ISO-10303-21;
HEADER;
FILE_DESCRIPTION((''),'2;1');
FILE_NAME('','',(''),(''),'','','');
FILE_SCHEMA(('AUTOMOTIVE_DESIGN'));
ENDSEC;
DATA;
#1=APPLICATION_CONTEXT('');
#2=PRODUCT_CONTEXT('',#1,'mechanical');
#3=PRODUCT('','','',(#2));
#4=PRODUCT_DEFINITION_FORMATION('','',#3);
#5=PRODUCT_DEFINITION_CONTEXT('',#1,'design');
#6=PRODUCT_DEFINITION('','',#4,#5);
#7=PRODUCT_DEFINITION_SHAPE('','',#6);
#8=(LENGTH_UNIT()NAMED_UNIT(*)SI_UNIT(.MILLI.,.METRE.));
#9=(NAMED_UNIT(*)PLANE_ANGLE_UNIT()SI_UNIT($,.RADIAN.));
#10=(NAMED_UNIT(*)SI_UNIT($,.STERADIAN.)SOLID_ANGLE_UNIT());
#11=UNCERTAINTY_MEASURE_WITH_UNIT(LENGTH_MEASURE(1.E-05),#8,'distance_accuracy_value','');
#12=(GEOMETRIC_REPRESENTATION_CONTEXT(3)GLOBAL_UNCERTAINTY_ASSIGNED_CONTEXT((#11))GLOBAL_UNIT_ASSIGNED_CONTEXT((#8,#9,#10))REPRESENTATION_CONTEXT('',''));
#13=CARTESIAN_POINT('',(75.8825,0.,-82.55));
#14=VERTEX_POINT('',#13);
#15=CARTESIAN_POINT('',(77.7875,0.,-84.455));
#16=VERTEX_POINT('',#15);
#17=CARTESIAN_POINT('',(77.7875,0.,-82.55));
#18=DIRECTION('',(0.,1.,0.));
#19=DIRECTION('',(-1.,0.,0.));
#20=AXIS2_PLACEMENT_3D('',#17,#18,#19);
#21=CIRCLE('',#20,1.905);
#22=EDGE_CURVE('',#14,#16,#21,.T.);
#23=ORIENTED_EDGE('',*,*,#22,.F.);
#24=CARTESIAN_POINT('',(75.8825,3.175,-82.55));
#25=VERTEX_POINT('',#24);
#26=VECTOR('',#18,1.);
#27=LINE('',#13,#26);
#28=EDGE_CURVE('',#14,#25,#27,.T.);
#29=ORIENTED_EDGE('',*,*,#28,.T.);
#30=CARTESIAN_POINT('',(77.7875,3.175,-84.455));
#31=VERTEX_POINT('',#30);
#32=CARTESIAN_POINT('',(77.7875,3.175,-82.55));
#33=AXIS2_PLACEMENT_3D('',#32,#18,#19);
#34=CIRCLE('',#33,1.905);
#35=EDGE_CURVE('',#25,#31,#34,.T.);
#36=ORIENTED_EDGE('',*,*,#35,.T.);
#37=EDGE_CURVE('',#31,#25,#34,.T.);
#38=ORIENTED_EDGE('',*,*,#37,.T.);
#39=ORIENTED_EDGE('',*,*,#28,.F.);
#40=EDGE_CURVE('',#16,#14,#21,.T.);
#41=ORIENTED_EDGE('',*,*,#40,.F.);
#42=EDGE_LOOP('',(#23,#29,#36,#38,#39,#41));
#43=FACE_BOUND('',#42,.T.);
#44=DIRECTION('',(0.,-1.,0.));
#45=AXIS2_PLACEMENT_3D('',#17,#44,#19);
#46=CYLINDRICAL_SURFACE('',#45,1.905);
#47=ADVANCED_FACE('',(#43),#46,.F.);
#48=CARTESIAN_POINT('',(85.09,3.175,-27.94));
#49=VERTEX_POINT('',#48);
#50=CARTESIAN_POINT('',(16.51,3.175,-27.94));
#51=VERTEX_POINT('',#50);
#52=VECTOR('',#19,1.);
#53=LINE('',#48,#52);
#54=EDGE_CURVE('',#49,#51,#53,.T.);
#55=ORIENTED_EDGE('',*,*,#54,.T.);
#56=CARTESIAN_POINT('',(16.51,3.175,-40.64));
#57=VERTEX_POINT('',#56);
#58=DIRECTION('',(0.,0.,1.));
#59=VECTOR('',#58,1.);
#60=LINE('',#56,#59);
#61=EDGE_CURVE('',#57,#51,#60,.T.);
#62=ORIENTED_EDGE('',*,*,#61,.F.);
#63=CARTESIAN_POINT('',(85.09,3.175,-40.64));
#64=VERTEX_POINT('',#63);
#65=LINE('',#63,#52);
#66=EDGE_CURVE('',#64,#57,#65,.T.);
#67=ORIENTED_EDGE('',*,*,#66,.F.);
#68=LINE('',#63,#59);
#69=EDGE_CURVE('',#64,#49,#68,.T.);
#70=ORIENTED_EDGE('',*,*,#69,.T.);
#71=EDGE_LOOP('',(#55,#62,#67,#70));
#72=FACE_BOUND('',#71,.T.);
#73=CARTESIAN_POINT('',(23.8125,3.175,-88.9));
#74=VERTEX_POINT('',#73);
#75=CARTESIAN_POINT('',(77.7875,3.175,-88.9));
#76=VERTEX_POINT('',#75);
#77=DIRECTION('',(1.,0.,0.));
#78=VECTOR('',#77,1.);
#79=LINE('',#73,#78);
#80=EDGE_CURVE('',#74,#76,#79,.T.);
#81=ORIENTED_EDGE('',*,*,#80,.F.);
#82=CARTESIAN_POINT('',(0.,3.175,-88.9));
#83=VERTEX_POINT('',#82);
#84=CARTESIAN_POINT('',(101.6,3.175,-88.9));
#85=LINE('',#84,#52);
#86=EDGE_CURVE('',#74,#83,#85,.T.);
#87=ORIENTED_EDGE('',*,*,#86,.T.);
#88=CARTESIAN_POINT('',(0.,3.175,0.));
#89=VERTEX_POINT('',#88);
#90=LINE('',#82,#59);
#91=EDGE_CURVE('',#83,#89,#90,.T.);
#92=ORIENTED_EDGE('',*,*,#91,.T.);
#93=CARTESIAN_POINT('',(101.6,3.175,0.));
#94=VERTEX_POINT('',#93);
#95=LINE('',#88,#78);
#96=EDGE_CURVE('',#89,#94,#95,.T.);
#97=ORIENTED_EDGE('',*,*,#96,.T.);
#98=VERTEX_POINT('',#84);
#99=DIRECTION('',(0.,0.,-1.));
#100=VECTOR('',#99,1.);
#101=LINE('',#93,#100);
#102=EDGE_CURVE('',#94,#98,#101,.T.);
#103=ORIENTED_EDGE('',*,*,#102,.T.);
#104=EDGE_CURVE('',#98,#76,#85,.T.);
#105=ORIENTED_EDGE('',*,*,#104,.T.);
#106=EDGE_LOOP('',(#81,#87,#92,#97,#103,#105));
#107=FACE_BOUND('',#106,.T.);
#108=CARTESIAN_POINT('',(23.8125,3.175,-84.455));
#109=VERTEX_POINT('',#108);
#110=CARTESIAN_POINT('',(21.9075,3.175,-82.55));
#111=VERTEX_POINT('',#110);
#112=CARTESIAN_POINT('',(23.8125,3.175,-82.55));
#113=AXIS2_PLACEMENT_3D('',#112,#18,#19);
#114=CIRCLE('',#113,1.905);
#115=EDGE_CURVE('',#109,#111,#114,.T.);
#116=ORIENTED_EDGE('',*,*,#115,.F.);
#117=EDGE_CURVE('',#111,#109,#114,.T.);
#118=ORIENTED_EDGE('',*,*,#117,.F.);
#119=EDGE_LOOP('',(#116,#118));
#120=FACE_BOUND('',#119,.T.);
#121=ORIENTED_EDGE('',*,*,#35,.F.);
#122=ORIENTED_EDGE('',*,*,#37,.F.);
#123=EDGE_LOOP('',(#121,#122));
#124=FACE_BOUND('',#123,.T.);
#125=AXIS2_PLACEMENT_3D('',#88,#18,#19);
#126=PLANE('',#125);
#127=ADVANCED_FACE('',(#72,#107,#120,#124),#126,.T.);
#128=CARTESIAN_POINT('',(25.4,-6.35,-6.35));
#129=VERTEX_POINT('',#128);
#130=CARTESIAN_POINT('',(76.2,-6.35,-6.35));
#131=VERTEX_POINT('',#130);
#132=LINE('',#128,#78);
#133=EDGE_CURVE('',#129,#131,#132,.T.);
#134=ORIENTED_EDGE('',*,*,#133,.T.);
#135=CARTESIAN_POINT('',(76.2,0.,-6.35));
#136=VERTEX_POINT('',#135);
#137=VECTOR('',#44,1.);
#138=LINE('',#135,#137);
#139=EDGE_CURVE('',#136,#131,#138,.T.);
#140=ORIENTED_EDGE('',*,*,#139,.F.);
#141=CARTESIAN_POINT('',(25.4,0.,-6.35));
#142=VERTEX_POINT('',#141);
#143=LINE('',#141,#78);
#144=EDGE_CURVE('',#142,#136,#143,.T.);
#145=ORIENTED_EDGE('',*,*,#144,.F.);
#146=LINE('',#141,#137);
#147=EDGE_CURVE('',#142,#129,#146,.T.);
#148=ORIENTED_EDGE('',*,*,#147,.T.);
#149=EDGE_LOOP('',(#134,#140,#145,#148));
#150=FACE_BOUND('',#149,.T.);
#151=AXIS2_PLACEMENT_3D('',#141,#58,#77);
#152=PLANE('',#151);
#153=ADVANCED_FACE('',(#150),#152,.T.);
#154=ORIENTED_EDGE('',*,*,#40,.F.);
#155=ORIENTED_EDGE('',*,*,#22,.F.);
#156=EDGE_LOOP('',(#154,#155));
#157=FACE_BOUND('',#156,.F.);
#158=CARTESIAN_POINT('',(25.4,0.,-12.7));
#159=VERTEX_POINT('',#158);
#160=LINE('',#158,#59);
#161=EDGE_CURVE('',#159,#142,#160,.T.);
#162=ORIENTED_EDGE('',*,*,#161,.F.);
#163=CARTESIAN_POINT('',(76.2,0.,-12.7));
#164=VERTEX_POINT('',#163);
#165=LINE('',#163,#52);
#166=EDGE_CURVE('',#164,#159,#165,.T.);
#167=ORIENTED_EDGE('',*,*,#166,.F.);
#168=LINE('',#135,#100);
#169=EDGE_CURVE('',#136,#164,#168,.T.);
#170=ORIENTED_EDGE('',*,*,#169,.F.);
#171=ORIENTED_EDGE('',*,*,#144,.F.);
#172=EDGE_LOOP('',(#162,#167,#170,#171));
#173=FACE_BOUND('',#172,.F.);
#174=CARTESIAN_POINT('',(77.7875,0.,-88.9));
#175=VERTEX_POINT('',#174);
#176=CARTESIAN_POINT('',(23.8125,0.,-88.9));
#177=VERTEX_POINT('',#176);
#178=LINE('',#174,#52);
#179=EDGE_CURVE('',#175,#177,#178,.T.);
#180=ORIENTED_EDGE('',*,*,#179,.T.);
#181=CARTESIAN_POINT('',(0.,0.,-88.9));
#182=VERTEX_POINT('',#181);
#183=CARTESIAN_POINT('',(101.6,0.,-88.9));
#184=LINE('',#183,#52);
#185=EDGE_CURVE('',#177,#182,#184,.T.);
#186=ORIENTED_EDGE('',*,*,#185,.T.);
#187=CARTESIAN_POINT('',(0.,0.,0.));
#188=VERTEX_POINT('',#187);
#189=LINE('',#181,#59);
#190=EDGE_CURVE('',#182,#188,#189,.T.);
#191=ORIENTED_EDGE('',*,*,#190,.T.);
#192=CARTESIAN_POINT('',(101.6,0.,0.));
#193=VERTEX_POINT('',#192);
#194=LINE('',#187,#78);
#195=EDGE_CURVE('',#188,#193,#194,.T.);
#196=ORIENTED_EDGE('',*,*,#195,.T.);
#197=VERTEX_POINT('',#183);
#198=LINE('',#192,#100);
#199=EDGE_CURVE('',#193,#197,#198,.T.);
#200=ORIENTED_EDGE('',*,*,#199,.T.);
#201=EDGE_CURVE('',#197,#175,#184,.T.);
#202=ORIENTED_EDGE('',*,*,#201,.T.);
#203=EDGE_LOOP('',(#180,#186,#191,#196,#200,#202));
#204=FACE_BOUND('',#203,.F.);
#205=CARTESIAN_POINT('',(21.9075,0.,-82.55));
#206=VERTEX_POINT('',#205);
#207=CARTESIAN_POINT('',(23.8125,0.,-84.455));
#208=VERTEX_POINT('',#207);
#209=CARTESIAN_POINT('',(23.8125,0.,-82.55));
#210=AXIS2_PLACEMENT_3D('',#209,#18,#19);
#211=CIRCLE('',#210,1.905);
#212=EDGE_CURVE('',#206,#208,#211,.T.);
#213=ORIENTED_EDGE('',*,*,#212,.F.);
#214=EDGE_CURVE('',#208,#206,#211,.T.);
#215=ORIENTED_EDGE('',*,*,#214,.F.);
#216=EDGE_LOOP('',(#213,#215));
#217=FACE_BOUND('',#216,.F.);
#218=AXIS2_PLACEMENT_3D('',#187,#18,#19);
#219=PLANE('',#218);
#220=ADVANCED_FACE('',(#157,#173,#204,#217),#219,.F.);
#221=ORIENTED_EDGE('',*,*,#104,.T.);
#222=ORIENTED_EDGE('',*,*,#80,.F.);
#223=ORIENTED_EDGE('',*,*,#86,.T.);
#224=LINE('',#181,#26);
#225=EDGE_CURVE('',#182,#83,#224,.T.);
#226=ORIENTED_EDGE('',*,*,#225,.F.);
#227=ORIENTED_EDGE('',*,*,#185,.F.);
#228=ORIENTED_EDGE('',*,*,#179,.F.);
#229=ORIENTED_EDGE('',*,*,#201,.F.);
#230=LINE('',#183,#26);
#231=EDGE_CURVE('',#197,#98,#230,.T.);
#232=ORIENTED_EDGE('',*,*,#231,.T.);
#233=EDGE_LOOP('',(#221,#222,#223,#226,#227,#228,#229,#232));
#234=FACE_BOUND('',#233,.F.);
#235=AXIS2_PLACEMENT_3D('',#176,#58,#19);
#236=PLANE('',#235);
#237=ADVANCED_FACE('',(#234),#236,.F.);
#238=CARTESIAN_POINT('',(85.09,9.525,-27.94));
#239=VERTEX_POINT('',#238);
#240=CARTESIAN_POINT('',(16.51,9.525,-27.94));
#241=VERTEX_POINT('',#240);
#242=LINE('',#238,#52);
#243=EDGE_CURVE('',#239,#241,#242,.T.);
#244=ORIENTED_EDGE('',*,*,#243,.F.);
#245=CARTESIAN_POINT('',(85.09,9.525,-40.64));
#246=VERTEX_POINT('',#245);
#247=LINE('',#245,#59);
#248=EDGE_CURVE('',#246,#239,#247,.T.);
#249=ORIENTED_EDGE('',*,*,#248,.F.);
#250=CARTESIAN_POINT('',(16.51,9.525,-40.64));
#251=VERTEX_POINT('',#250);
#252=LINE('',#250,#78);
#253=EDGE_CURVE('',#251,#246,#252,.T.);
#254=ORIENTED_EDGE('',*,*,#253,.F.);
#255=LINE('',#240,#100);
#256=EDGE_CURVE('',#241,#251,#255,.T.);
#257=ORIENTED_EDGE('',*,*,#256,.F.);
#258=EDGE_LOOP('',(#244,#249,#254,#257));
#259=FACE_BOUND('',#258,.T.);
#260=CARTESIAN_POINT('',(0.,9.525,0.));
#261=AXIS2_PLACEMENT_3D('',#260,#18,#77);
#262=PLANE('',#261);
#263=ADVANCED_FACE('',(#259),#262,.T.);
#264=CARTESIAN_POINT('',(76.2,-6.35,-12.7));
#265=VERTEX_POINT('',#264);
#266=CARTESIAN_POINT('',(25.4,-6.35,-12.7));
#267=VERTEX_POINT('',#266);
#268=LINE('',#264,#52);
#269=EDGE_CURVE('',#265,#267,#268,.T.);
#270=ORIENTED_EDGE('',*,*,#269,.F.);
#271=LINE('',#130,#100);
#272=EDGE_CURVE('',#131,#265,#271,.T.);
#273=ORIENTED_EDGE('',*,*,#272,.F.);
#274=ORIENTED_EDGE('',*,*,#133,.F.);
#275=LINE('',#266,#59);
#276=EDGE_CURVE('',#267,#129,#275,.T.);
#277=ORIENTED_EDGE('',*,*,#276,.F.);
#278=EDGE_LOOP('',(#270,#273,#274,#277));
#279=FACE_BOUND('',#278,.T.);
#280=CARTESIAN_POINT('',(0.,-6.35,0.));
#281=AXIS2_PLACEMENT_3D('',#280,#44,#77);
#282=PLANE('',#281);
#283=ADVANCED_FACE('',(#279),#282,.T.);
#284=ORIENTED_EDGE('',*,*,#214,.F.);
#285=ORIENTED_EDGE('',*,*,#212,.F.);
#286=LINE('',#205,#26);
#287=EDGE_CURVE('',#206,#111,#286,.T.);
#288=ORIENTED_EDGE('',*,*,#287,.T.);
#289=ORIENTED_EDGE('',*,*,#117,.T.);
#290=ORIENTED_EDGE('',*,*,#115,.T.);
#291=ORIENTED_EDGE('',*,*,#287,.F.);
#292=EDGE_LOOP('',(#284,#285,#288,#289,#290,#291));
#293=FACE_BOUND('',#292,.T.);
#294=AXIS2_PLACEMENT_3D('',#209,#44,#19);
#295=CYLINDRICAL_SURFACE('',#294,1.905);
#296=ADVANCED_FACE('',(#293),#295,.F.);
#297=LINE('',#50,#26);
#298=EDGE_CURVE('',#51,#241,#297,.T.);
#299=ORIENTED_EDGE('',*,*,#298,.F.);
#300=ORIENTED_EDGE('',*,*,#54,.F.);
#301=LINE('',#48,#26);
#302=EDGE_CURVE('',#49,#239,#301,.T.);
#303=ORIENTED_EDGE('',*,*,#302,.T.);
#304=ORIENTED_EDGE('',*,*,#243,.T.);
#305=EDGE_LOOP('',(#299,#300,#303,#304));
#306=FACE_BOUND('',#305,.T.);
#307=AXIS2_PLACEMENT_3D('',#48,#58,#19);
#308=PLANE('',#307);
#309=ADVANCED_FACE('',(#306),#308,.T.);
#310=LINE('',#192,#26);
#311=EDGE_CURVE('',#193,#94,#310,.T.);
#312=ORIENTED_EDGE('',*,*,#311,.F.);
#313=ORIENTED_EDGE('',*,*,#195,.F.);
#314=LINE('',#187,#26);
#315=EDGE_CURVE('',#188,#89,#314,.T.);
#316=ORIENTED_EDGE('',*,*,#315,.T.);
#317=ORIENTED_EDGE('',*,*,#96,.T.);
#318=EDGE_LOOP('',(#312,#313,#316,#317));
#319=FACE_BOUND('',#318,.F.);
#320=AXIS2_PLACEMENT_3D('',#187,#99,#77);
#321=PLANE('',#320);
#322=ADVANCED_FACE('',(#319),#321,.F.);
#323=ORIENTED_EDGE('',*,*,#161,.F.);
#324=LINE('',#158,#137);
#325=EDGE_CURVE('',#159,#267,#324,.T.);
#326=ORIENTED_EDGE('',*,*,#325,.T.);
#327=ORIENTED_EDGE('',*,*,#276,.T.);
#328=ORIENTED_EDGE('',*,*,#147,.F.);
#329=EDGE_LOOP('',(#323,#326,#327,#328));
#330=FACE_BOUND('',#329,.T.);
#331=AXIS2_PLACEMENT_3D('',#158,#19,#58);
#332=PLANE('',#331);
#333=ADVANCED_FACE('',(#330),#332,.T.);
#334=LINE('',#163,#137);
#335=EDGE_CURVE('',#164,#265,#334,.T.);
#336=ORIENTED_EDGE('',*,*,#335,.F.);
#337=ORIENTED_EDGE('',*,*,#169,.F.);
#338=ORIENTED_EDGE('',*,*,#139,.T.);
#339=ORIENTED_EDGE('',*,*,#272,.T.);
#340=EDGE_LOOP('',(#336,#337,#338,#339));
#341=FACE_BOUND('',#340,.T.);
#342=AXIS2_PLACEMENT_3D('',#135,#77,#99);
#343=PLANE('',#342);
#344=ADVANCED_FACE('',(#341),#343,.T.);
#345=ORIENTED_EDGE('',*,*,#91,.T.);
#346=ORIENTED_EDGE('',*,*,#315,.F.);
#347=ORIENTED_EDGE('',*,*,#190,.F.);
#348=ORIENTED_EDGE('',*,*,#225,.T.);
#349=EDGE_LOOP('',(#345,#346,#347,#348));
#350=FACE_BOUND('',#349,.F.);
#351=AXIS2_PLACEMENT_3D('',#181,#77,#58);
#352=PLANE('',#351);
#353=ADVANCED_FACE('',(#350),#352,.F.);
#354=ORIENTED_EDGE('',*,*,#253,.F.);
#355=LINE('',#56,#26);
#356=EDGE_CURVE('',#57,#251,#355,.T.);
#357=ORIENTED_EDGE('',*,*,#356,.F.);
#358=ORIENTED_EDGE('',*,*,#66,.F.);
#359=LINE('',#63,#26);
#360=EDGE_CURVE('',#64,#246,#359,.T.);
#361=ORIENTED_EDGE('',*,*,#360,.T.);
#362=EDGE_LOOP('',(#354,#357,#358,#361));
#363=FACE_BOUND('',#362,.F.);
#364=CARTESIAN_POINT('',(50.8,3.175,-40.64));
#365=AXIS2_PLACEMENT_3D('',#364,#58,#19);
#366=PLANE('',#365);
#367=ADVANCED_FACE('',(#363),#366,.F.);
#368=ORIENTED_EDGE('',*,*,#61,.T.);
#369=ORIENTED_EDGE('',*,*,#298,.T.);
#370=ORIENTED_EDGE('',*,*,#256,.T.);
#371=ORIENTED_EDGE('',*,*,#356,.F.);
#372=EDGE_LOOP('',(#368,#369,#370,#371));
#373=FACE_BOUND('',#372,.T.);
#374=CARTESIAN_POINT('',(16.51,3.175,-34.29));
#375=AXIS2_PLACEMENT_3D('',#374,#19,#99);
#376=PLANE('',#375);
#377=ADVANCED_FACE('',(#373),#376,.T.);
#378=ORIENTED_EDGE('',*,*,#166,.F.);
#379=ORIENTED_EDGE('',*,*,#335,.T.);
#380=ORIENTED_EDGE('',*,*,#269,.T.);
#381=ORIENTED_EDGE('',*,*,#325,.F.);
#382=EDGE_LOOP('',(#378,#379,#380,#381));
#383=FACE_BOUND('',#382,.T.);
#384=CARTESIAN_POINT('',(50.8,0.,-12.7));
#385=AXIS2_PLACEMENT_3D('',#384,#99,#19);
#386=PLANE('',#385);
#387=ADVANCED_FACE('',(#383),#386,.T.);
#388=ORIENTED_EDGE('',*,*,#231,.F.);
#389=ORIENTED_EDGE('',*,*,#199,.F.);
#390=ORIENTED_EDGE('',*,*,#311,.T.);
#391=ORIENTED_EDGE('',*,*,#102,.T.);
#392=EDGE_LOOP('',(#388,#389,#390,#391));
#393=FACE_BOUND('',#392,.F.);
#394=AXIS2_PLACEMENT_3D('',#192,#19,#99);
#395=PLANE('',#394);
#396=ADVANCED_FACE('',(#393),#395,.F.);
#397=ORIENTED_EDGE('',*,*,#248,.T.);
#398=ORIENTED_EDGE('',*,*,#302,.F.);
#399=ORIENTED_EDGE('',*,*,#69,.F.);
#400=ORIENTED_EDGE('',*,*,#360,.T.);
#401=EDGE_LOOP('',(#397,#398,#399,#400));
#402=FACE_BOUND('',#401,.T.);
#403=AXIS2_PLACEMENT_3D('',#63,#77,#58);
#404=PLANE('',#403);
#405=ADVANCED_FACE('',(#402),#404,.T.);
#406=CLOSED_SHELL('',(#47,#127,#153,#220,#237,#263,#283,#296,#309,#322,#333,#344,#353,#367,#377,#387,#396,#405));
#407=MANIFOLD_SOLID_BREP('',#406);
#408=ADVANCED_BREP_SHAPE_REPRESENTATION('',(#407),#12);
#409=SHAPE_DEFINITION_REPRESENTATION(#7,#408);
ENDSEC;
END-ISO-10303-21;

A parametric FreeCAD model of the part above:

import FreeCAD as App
import Part
import Sketcher
Q = App.Units.Quantity

doc = App.newDocument("Part")
body = doc.addObject("PartDesign::Body", "Body")

sketch1 = doc.addObject("Sketcher::SketchObject", "Sketch")
body.addObject(sketch1)
sketch1.AttachmentSupport = (doc.XZ_Plane, [""])
sketch1.MapMode = "FlatFace"
sketch1.addGeometry([
    Part.LineSegment(App.Vector(0, -88.9, 0), App.Vector(0, 0, 0)),
    Part.LineSegment(App.Vector(0, 0, 0), App.Vector(101.6, 0, 0)),
    Part.LineSegment(App.Vector(101.6, 0, 0), App.Vector(101.6, -88.9, 0)),
    Part.LineSegment(App.Vector(101.6, -88.9, 0), App.Vector(77.8, -88.9, 0)),
    Part.LineSegment(App.Vector(77.8, -88.9, 0), App.Vector(23.8, -88.9, 0)),
    Part.LineSegment(App.Vector(23.8, -88.9, 0), App.Vector(0, -88.9, 0)),
    Part.Circle(App.Vector(77.8, -82.5, 0), App.Vector(0, 0, 1), 1.9),
    Part.Circle(App.Vector(23.8, -82.5, 0), App.Vector(0, 0, 1), 1.9),
], False)
sketch1.addConstraint([
    Sketcher.Constraint("Coincident", 0, 2, 1, 1),
    Sketcher.Constraint("Coincident", 1, 2, 2, 1),
    Sketcher.Constraint("Coincident", 2, 2, 3, 1),
    Sketcher.Constraint("Coincident", 3, 2, 4, 1),
    Sketcher.Constraint("Coincident", 4, 2, 5, 1),
    Sketcher.Constraint("Coincident", 5, 2, 0, 1),
    Sketcher.Constraint("Vertical", 0),
    Sketcher.Constraint("Horizontal", 1),
    Sketcher.Constraint("Vertical", 2),
    Sketcher.Constraint("Horizontal", 3),
    Sketcher.Constraint("Horizontal", 4),
    Sketcher.Constraint("Horizontal", 5),
    Sketcher.Constraint("Coincident", 0, 2, -1, 1),
    Sketcher.Constraint("Equal", 6, 7),
    Sketcher.Constraint("Horizontal", 6, 3, 7, 3),
    Sketcher.Constraint("Vertical", 6, 3, 3, 2),
    Sketcher.Constraint("Vertical", 7, 3, 4, 2),
    Sketcher.Constraint("Equal", 3, 5),
    Sketcher.Constraint("Diameter", 6, Q("0.15 in")),
    Sketcher.Constraint("DistanceX", 1, 1, 1, 2, Q("4 in")),
    Sketcher.Constraint("DistanceY", 0, 1, 0, 2, Q("3.5 in")),
    Sketcher.Constraint("DistanceY", 2, 2, 6, 3, Q("0.25 in")),
    Sketcher.Constraint("DistanceX", 3, 2, 3, 1, Q("0.9375 in")),
])
pad1 = doc.addObject("PartDesign::Pad", "Pad")
body.addObject(pad1)
pad1.Profile = sketch1
pad1.Length = Q("0.125 in")
pad1.Reversed = True

sketch2 = doc.addObject("Sketcher::SketchObject", "Sketch001")
body.addObject(sketch2)
sketch2.AttachmentSupport = (doc.XZ_Plane, [""])
sketch2.MapMode = "FlatFace"
sketch2.addGeometry([
    Part.LineSegment(App.Vector(25, -13, 0), App.Vector(76, -13, 0)),
    Part.LineSegment(App.Vector(76, -13, 0), App.Vector(76, -6, 0)),
    Part.LineSegment(App.Vector(76, -6, 0), App.Vector(25, -6, 0)),
    Part.LineSegment(App.Vector(25, -6, 0), App.Vector(25, -13, 0)),
], False)
sketch2.addConstraint([
    Sketcher.Constraint("Coincident", 0, 2, 1, 1),
    Sketcher.Constraint("Coincident", 1, 2, 2, 1),
    Sketcher.Constraint("Coincident", 2, 2, 3, 1),
    Sketcher.Constraint("Coincident", 3, 2, 0, 1),
    Sketcher.Constraint("Horizontal", 0),
    Sketcher.Constraint("Vertical", 1),
    Sketcher.Constraint("Horizontal", 2),
    Sketcher.Constraint("Vertical", 3),
    Sketcher.Constraint("DistanceX", 0, 1, 0, 2, Q("2 in")),
    Sketcher.Constraint("DistanceX", -1, 1, 0, 2, Q("3 in")),
    Sketcher.Constraint("DistanceY", 1, 1, 1, 2, Q("0.25 in")),
    Sketcher.Constraint("DistanceY", 1, 2, -1, 1, Q("0.25 in")),
])
pad2 = doc.addObject("PartDesign::Pad", "Pad001")
body.addObject(pad2)
pad2.Profile = sketch2
pad2.Length = Q("0.25 in")

sketch3 = doc.addObject("Sketcher::SketchObject", "Sketch002")
body.addObject(sketch3)
sketch3.AttachmentSupport = (doc.XZ_Plane, [""])
sketch3.MapMode = "FlatFace"
sketch3.AttachmentOffset = App.Placement(App.Vector(0, 0, -0.125 * 25.4), App.Rotation())
sketch3.addGeometry([
    Part.LineSegment(App.Vector(17, -41, 0), App.Vector(17, -28, 0)),
    Part.LineSegment(App.Vector(17, -28, 0), App.Vector(85, -28, 0)),
    Part.LineSegment(App.Vector(85, -28, 0), App.Vector(85, -41, 0)),
    Part.LineSegment(App.Vector(85, -41, 0), App.Vector(17, -41, 0)),
], False)
sketch3.addConstraint([
    Sketcher.Constraint("Coincident", 0, 2, 1, 1),
    Sketcher.Constraint("Coincident", 1, 2, 2, 1),
    Sketcher.Constraint("Coincident", 2, 2, 3, 1),
    Sketcher.Constraint("Coincident", 3, 2, 0, 1),
    Sketcher.Constraint("Vertical", 0),
    Sketcher.Constraint("Horizontal", 1),
    Sketcher.Constraint("Vertical", 2),
    Sketcher.Constraint("Horizontal", 3),
    Sketcher.Constraint("DistanceX", 1, 1, 1, 2, Q("2.7 in")),
    Sketcher.Constraint("DistanceY", 0, 1, 0, 2, Q("0.5 in")),
    Sketcher.Constraint("DistanceY", 0, 2, -1, 1, Q("1.1 in")),
    Sketcher.Constraint("DistanceX", -1, 1, 0, 2, Q("0.65 in")),
])
pad3 = doc.addObject("PartDesign::Pad", "Pad002")
body.addObject(pad3)
pad3.Profile = sketch3
pad3.Length = Q("0.25 in")
pad3.Reversed = True

doc.recompute()
